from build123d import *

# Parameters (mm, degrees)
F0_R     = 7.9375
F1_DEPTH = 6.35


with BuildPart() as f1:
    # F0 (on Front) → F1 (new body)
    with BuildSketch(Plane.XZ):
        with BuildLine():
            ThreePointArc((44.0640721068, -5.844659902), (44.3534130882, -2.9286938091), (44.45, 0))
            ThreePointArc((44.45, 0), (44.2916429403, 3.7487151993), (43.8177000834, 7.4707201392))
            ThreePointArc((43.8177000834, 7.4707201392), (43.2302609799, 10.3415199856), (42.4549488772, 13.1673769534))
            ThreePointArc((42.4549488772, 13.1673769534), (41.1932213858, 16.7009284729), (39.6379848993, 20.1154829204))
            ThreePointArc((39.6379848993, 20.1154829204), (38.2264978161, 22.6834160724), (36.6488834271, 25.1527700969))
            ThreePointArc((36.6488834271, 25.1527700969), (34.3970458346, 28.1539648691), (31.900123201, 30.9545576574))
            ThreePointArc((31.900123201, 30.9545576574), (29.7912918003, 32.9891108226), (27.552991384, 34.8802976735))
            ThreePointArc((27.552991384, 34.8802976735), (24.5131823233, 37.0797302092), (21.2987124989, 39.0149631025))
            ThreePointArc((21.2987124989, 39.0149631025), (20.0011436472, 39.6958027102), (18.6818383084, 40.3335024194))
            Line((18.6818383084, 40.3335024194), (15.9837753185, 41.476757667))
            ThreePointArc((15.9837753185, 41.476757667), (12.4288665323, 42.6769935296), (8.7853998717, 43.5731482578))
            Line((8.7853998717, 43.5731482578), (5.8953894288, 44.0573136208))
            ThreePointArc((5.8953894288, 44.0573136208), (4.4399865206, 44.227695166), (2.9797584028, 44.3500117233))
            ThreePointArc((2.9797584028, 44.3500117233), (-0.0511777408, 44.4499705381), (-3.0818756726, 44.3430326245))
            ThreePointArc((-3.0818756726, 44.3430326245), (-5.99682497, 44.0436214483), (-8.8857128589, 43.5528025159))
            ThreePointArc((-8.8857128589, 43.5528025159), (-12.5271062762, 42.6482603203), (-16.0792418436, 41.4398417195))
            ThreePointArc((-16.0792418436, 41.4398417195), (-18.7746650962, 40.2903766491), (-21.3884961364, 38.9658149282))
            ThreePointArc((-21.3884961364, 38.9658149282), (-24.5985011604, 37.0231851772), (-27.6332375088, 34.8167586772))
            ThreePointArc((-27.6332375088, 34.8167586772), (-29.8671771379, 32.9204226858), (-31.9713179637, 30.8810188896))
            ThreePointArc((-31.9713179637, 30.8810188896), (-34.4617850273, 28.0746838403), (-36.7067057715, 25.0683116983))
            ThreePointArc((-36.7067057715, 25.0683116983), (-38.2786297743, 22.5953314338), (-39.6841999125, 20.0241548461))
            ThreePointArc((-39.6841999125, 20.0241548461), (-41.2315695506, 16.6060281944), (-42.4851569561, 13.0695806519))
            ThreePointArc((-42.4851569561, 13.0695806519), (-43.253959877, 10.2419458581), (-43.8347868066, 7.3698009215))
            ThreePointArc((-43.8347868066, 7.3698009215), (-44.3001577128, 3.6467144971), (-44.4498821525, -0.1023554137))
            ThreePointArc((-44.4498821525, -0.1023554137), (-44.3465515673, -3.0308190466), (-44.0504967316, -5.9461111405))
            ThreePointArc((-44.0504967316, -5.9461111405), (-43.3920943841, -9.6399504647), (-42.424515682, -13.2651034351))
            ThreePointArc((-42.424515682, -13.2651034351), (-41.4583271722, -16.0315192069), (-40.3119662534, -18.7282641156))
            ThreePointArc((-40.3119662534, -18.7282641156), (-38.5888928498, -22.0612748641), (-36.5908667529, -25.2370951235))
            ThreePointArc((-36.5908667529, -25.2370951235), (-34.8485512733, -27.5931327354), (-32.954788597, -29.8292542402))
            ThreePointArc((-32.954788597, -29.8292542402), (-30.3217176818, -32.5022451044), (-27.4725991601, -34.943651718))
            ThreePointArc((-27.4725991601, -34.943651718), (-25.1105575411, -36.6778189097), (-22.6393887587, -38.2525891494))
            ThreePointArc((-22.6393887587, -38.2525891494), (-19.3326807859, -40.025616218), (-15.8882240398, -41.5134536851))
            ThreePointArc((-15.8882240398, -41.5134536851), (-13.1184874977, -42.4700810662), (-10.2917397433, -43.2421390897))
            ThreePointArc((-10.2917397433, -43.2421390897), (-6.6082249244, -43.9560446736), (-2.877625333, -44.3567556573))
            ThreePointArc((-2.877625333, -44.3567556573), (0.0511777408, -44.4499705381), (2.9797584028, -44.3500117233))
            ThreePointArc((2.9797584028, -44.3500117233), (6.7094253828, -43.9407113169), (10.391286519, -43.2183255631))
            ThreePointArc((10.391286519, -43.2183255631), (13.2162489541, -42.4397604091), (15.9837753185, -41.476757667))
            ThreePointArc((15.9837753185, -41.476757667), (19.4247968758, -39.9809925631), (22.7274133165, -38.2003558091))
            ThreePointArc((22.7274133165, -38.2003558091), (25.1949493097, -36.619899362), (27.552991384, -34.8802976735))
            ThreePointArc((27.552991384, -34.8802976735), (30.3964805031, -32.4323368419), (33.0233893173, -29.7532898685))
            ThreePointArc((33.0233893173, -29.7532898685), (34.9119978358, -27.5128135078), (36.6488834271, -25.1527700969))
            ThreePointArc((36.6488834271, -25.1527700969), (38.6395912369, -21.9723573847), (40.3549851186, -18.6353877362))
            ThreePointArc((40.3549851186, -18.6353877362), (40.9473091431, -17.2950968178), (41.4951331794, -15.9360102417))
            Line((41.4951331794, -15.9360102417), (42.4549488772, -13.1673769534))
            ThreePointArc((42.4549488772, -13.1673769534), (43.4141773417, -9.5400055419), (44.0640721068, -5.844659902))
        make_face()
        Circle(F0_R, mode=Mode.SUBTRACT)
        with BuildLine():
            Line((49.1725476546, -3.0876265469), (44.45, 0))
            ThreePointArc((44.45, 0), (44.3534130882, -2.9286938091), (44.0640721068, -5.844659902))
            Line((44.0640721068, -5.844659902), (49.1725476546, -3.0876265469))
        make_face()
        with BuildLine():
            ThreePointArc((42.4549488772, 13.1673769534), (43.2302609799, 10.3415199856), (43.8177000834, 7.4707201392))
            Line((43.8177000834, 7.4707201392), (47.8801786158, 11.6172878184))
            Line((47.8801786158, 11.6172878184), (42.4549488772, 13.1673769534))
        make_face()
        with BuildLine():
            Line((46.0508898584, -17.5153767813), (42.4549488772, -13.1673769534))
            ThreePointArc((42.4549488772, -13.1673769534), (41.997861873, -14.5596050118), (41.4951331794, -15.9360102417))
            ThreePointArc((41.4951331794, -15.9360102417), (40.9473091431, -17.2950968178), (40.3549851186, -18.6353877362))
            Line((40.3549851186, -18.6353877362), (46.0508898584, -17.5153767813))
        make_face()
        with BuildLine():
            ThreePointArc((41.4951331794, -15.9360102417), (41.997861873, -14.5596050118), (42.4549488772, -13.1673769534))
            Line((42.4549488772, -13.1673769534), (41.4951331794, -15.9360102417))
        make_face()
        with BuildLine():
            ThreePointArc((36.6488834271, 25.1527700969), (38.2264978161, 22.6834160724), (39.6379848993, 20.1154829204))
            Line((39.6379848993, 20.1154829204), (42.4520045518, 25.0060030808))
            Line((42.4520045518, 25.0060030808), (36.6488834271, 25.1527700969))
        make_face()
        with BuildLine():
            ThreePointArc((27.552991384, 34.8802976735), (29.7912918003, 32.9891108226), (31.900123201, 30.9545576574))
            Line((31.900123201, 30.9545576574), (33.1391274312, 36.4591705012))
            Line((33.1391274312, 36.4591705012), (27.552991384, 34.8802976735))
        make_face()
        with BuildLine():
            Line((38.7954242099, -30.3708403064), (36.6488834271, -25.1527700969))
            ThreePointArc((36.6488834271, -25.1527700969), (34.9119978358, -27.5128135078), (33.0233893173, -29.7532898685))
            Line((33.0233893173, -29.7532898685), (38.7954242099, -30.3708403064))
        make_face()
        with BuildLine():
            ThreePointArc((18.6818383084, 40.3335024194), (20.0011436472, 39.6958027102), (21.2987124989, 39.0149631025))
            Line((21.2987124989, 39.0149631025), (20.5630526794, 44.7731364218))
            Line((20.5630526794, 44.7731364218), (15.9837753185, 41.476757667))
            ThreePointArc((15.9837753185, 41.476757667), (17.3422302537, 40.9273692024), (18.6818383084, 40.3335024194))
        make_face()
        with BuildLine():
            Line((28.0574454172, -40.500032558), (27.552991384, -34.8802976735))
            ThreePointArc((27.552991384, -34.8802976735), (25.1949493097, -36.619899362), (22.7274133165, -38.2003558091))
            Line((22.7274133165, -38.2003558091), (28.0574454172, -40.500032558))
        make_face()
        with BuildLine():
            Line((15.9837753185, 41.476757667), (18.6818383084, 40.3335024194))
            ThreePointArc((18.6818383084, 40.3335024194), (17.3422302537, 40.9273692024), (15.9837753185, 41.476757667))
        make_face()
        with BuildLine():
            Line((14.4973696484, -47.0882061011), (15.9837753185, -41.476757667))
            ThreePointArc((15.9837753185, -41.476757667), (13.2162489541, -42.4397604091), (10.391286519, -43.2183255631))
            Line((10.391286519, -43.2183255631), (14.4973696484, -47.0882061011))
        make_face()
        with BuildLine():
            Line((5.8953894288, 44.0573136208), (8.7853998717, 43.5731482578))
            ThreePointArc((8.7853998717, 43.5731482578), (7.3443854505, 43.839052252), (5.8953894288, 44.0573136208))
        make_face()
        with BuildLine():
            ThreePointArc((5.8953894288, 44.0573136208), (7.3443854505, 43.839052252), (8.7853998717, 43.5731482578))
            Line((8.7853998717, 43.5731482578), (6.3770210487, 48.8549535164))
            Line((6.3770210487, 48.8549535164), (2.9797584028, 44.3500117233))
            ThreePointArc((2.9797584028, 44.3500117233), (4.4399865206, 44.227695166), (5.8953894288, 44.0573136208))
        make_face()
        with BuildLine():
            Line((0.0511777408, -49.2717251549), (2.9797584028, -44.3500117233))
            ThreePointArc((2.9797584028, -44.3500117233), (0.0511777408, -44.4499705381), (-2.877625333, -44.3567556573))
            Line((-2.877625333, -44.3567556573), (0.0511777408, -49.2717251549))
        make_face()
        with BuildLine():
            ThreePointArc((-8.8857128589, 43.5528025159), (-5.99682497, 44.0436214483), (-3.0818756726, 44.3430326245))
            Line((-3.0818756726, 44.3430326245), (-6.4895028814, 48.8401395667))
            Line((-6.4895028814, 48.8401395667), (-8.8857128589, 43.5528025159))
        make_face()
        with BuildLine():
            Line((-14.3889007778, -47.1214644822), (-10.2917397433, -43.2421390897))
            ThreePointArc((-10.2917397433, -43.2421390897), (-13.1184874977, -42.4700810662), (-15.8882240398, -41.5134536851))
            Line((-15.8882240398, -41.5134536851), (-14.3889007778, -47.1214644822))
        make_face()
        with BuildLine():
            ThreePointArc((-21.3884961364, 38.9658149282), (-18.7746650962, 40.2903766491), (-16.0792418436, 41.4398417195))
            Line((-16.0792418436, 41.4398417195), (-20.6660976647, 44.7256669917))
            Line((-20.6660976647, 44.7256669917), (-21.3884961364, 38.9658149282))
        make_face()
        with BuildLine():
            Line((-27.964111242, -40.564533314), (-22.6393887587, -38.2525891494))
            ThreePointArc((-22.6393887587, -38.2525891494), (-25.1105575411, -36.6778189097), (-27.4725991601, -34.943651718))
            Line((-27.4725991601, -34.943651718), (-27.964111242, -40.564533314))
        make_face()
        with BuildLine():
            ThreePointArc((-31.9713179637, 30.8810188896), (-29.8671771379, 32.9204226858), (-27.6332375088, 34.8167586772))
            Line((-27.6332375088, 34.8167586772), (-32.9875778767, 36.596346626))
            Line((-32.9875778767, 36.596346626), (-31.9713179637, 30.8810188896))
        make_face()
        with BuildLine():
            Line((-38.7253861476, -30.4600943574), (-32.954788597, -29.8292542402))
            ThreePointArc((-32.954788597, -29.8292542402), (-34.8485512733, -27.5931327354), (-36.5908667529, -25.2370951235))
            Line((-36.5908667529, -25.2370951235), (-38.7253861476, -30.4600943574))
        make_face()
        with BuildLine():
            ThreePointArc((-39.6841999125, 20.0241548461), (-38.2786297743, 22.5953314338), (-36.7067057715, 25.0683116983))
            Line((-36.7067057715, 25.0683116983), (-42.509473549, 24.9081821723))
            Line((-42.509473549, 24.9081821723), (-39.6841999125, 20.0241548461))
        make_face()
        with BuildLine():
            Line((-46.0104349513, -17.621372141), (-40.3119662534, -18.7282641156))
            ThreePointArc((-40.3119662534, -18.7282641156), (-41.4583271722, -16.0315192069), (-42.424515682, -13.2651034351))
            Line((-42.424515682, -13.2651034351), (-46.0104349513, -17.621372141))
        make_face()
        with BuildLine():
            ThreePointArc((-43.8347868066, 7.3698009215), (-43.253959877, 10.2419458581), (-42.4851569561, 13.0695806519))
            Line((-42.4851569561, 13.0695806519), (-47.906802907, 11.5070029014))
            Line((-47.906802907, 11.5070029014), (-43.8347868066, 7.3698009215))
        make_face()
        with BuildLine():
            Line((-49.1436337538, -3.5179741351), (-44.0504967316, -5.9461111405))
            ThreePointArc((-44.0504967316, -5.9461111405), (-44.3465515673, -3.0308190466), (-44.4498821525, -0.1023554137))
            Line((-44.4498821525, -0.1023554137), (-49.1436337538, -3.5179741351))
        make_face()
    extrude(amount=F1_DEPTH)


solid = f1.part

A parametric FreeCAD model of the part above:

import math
import FreeCAD as App
import Part
import Sketcher

V = App.Vector
Q = App.Units.Quantity

doc = App.newDocument("Part")
body = doc.addObject("PartDesign::Body", "Body")

# Sketch on XZ plane
sketch1 = body.newObject("Sketcher::SketchObject", "Sketch")
sketch1.AttachmentSupport = (doc.getObject("XZ_Plane"), [""])
sketch1.MapMode = "FlatFace"
sketch1.addGeometry([
    Part.LineSegment(V(21, 45, 0), V(16, 41, 0)),  # 0
    Part.ArcOfCircle(Part.Circle(V(0, 0, 0), V(0, 0, 1), 44), math.radians(68.92), math.radians(78.6)),  # 1
    Part.LineSegment(V(9, 44, 0), V(6, 49, 0)),  # 2
    Part.LineSegment(V(6, 49, 0), V(3, 44, 0)),  # 3
    Part.ArcOfCircle(Part.Circle(V(0, 0, 0), V(0, 0, 1), 44), math.radians(86.16), math.radians(93.98)),  # 4
    Part.LineSegment(V(-3, 44, 0), V(-6, 49, 0)),  # 5
    Part.LineSegment(V(-6, 49, 0), V(-9, 44, 0)),  # 6
    Part.ArcOfCircle(Part.Circle(V(0, 0, 0), V(0, 0, 1), 44), math.radians(101.53), math.radians(111.21)),  # 7
    Part.LineSegment(V(-16, 41, 0), V(-21, 45, 0)),  # 8
    Part.LineSegment(V(-21, 45, 0), V(-21, 39, 0)),  # 9
    Part.ArcOfCircle(Part.Circle(V(0, 0, 0), V(0, 0, 1), 44), math.radians(118.76), math.radians(128.44)),  # 10
    Part.LineSegment(V(-28, 35, 0), V(-33, 37, 0)),  # 11
    Part.LineSegment(V(-33, 37, 0), V(-32, 31, 0)),  # 12
    Part.ArcOfCircle(Part.Circle(V(0, 0, 0), V(0, 0, 1), 44), math.radians(135.99), math.radians(145.67)),  # 13
    Part.LineSegment(V(-37, 25, 0), V(-43, 25, 0)),  # 14
    Part.LineSegment(V(-43, 25, 0), V(-40, 20, 0)),  # 15
    Part.ArcOfCircle(Part.Circle(V(0, 0, 0), V(0, 0, 1), 44), math.radians(153.23), math.radians(162.9)),  # 16
    Part.LineSegment(V(-42, 13, 0), V(-48, 12, 0)),  # 17
    Part.LineSegment(V(-48, 12, 0), V(-44, 7, 0)),  # 18
    Part.ArcOfCircle(Part.Circle(V(0, 0, 0), V(0, 0, 1), 44), math.radians(170.46), math.radians(180.13)),  # 19
    Part.LineSegment(V(-44, 0, 0), V(-49, -4, 0)),  # 20
    Part.LineSegment(V(-49, -4, 0), V(-44, -6, 0)),  # 21
    Part.ArcOfCircle(Part.Circle(V(0, 0, 0), V(0, 0, 1), 44), math.radians(-172.31), math.radians(-162.64)),  # 22
    Part.LineSegment(V(-42, -13, 0), V(-46, -18, 0)),  # 23
    Part.LineSegment(V(-46, -18, 0), V(-40, -19, 0)),  # 24
    Part.ArcOfCircle(Part.Circle(V(0, 0, 0), V(0, 0, 1), 44), math.radians(-155.08), math.radians(-145.41)),  # 25
    Part.LineSegment(V(-37, -25, 0), V(-39, -30, 0)),  # 26
    Part.LineSegment(V(-39, -30, 0), V(-33, -30, 0)),  # 27
    Part.ArcOfCircle(Part.Circle(V(0, 0, 0), V(0, 0, 1), 44), math.radians(-137.85), math.radians(-128.17)),  # 28
    Part.LineSegment(V(-27, -35, 0), V(-28, -41, 0)),  # 29
    Part.LineSegment(V(-28, -41, 0), V(-23, -38, 0)),  # 30
    Part.ArcOfCircle(Part.Circle(V(0, 0, 0), V(0, 0, 1), 44), math.radians(-120.62), math.radians(-110.94)),  # 31
    Part.LineSegment(V(-16, -42, 0), V(-14, -47, 0)),  # 32
    Part.LineSegment(V(-14, -47, 0), V(-10, -43, 0)),  # 33
    Part.ArcOfCircle(Part.Circle(V(0, 0, 0), V(0, 0, 1), 44), math.radians(-103.39), math.radians(-93.71)),  # 34
    Part.LineSegment(V(-3, -44, 0), V(0, -49, 0)),  # 35
    Part.LineSegment(V(0, -49, 0), V(3, -44, 0)),  # 36
    Part.ArcOfCircle(Part.Circle(V(0, 0, 0), V(0, 0, 1), 44), math.radians(-86.16), math.radians(-76.48)),  # 37
    Part.LineSegment(V(10, -43, 0), V(14, -47, 0)),  # 38
    Part.LineSegment(V(14, -47, 0), V(16, -41, 0)),  # 39
    Part.ArcOfCircle(Part.Circle(V(0, 0, 0), V(0, 0, 1), 44), math.radians(-68.92), math.radians(-59.25)),  # 40
    Part.LineSegment(V(23, -38, 0), V(28, -41, 0)),  # 41
    Part.LineSegment(V(28, -41, 0), V(28, -35, 0)),  # 42
    Part.ArcOfCircle(Part.Circle(V(0, 0, 0), V(0, 0, 1), 44), math.radians(-51.69), math.radians(-42.02)),  # 43
    Part.LineSegment(V(33, -30, 0), V(39, -30, 0)),  # 44
    Part.LineSegment(V(39, -30, 0), V(37, -25, 0)),  # 45
    Part.ArcOfCircle(Part.Circle(V(0, 0, 0), V(0, 0, 1), 44), math.radians(-34.46), math.radians(-24.79)),  # 46
    Part.LineSegment(V(40, -19, 0), V(46, -18, 0)),  # 47
    Part.LineSegment(V(46, -18, 0), V(42, -13, 0)),  # 48
    Part.ArcOfCircle(Part.Circle(V(0, 0, 0), V(0, 0, 1), 44), math.radians(-17.23), math.radians(-7.56)),  # 49
    Part.LineSegment(V(44, -6, 0), V(49, -3, 0)),  # 50
    Part.LineSegment(V(49, -3, 0), V(44, 0, 0)),  # 51
    Part.ArcOfCircle(Part.Circle(V(0, 0, 0), V(0, 0, 1), 44), math.radians(0), math.radians(9.68)),  # 52
    Part.LineSegment(V(44, 7, 0), V(48, 12, 0)),  # 53
    Part.LineSegment(V(48, 12, 0), V(42, 13, 0)),  # 54
    Part.ArcOfCircle(Part.Circle(V(0, 0, 0), V(0, 0, 1), 44), math.radians(17.23), math.radians(26.91)),  # 55
    Part.LineSegment(V(40, 20, 0), V(42, 25, 0)),  # 56
    Part.LineSegment(V(42, 25, 0), V(37, 25, 0)),  # 57
    Part.ArcOfCircle(Part.Circle(V(0, 0, 0), V(0, 0, 1), 44), math.radians(34.46), math.radians(44.14)),  # 58
    Part.LineSegment(V(32, 31, 0), V(33, 36, 0)),  # 59
    Part.LineSegment(V(33, 36, 0), V(28, 35, 0)),  # 60
    Part.ArcOfCircle(Part.Circle(V(0, 0, 0), V(0, 0, 1), 44), math.radians(51.69), math.radians(61.37)),  # 61
    Part.LineSegment(V(21, 39, 0), V(21, 45, 0)),  # 62
    Part.Circle(V(0, 0, 0), V(0, 0, 1), 8),  # 63
], False)
sketch1.addConstraint([
    Sketcher.Constraint("Coincident", 0, 2, 1, 1),
    Sketcher.Constraint("Coincident", 1, 2, 2, 1),
    Sketcher.Constraint("Coincident", 2, 2, 3, 1),
    Sketcher.Constraint("Coincident", 3, 2, 4, 1),
    Sketcher.Constraint("Coincident", 4, 2, 5, 1),
    Sketcher.Constraint("Coincident", 5, 2, 6, 1),
    Sketcher.Constraint("Coincident", 6, 2, 7, 1),
    Sketcher.Constraint("Coincident", 7, 2, 8, 1),
    Sketcher.Constraint("Coincident", 8, 2, 9, 1),
    Sketcher.Constraint("Coincident", 9, 2, 10, 1),
    Sketcher.Constraint("Coincident", 10, 2, 11, 1),
    Sketcher.Constraint("Coincident", 11, 2, 12, 1),
    Sketcher.Constraint("Coincident", 12, 2, 13, 1),
    Sketcher.Constraint("Coincident", 13, 2, 14, 1),
    Sketcher.Constraint("Coincident", 14, 2, 15, 1),
    Sketcher.Constraint("Coincident", 15, 2, 16, 1),
    Sketcher.Constraint("Coincident", 16, 2, 17, 1),
    Sketcher.Constraint("Coincident", 17, 2, 18, 1),
    Sketcher.Constraint("Coincident", 18, 2, 19, 1),
    Sketcher.Constraint("Coincident", 19, 2, 20, 1),
    Sketcher.Constraint("Coincident", 20, 2, 21, 1),
    Sketcher.Constraint("Coincident", 21, 2, 22, 1),
    Sketcher.Constraint("Coincident", 22, 2, 23, 1),
    Sketcher.Constraint("Coincident", 23, 2, 24, 1),
    Sketcher.Constraint("Coincident", 24, 2, 25, 1),
    Sketcher.Constraint("Coincident", 25, 2, 26, 1),
    Sketcher.Constraint("Coincident", 26, 2, 27, 1),
    Sketcher.Constraint("Coincident", 27, 2, 28, 1),
    Sketcher.Constraint("Coincident", 28, 2, 29, 1),
    Sketcher.Constraint("Coincident", 29, 2, 30, 1),
    Sketcher.Constraint("Coincident", 30, 2, 31, 1),
    Sketcher.Constraint("Coincident", 31, 2, 32, 1),
    Sketcher.Constraint("Coincident", 32, 2, 33, 1),
    Sketcher.Constraint("Coincident", 33, 2, 34, 1),
    Sketcher.Constraint("Coincident", 34, 2, 35, 1),
    Sketcher.Constraint("Coincident", 35, 2, 36, 1),
    Sketcher.Constraint("Coincident", 36, 2, 37, 1),
    Sketcher.Constraint("Coincident", 37, 2, 38, 1),
    Sketcher.Constraint("Coincident", 38, 2, 39, 1),
    Sketcher.Constraint("Coincident", 39, 2, 40, 1),
    Sketcher.Constraint("Coincident", 40, 2, 41, 1),
    Sketcher.Constraint("Coincident", 41, 2, 42, 1),
    Sketcher.Constraint("Coincident", 42, 2, 43, 1),
    Sketcher.Constraint("Coincident", 43, 2, 44, 1),
    Sketcher.Constraint("Coincident", 44, 2, 45, 1),
    Sketcher.Constraint("Coincident", 45, 2, 46, 1),
    Sketcher.Constraint("Coincident", 46, 2, 47, 1),
    Sketcher.Constraint("Coincident", 47, 2, 48, 1),
    Sketcher.Constraint("Coincident", 48, 2, 49, 1),
    Sketcher.Constraint("Coincident", 49, 2, 50, 1),
    Sketcher.Constraint("Coincident", 50, 2, 51, 1),
    Sketcher.Constraint("Coincident", 51, 2, 52, 1),
    Sketcher.Constraint("Coincident", 52, 2, 53, 1),
    Sketcher.Constraint("Coincident", 53, 2, 54, 1),
    Sketcher.Constraint("Coincident", 54, 2, 55, 1),
    Sketcher.Constraint("Coincident", 55, 2, 56, 1),
    Sketcher.Constraint("Coincident", 56, 2, 57, 1),
    Sketcher.Constraint("Coincident", 57, 2, 58, 1),
    Sketcher.Constraint("Coincident", 58, 2, 59, 1),
    Sketcher.Constraint("Coincident", 59, 2, 60, 1),
    Sketcher.Constraint("Coincident", 60, 2, 61, 1),
    Sketcher.Constraint("Coincident", 61, 2, 62, 1),
    Sketcher.Constraint("Coincident", 62, 2, 0, 1),
    Sketcher.Constraint("Coincident", 1, 3, -1, 1),
    Sketcher.Constraint("Coincident", 4, 3, -1, 1),
    Sketcher.Constraint("Coincident", 7, 3, -1, 1),
    Sketcher.Constraint("Coincident", 10, 3, -1, 1),
    Sketcher.Constraint("Coincident", 13, 3, -1, 1),
    Sketcher.Constraint("Coincident", 16, 3, -1, 1),
    Sketcher.Constraint("Coincident", 19, 3, -1, 1),
    Sketcher.Constraint("Coincident", 22, 3, -1, 1),
    Sketcher.Constraint("Coincident", 25, 3, -1, 1),
    Sketcher.Constraint("Coincident", 28, 3, -1, 1),
    Sketcher.Constraint("Coincident", 31, 3, -1, 1),
    Sketcher.Constraint("Coincident", 34, 3, -1, 1),
    Sketcher.Constraint("Coincident", 37, 3, -1, 1),
    Sketcher.Constraint("Coincident", 40, 3, -1, 1),
    Sketcher.Constraint("Coincident", 43, 3, -1, 1),
    Sketcher.Constraint("Coincident", 46, 3, -1, 1),
    Sketcher.Constraint("Coincident", 49, 3, -1, 1),
    Sketcher.Constraint("Coincident", 52, 3, -1, 1),
    Sketcher.Constraint("Coincident", 55, 3, -1, 1),
    Sketcher.Constraint("Coincident", 58, 3, -1, 1),
    Sketcher.Constraint("Coincident", 61, 3, -1, 1),
    Sketcher.Constraint("Coincident", 63, 3, -1, 1),
    Sketcher.Constraint("Equal", 1, 4),
    Sketcher.Constraint("Equal", 4, 7),
    Sketcher.Constraint("Equal", 7, 10),
    Sketcher.Constraint("Equal", 10, 13),
    Sketcher.Constraint("Equal", 13, 16),
    Sketcher.Constraint("Equal", 16, 19),
    Sketcher.Constraint("Equal", 19, 22),
    Sketcher.Constraint("Equal", 22, 25),
    Sketcher.Constraint("Equal", 25, 28),
    Sketcher.Constraint("Equal", 28, 31),
    Sketcher.Constraint("Equal", 31, 34),
    Sketcher.Constraint("Equal", 34, 37),
    Sketcher.Constraint("Equal", 37, 40),
    Sketcher.Constraint("Equal", 40, 43),
    Sketcher.Constraint("Equal", 43, 46),
    Sketcher.Constraint("Equal", 46, 49),
    Sketcher.Constraint("Equal", 49, 52),
    Sketcher.Constraint("Equal", 52, 55),
    Sketcher.Constraint("Equal", 55, 58),
    Sketcher.Constraint("Equal", 58, 61),
    Sketcher.Constraint("PointOnObject", 51, 2, -1),
    Sketcher.Constraint("Vertical", 3, 2, 36, 2),
    Sketcher.Constraint("Vertical", 0, 2, 39, 2),
    Sketcher.Constraint("Vertical", 48, 2, 54, 2),
    Sketcher.Constraint("Vertical", 45, 2, 57, 2),
    Sketcher.Constraint("Vertical", 42, 2, 60, 2),
    Sketcher.Constraint("Equal", 0, 3),
    Sketcher.Constraint("Equal", 3, 5),
    Sketcher.Constraint("Equal", 2, 6),
    Sketcher.Constraint("Equal", 5, 8),
    Sketcher.Constraint("Equal", 6, 9),
    Sketcher.Constraint("Equal", 8, 11),
    Sketcher.Constraint("Equal", 9, 12),
    Sketcher.Constraint("Equal", 12, 14),
    Sketcher.Constraint("Equal", 11, 15),
    Sketcher.Constraint("Equal", 15, 17),
    Sketcher.Constraint("Equal", 14, 18),
    Sketcher.Constraint("Equal", 18, 20),
    Sketcher.Constraint("Equal", 17, 21),
    Sketcher.Constraint("Equal", 21, 23),
    Sketcher.Constraint("Equal", 20, 24),
    Sketcher.Constraint("Equal", 23, 26),
    Sketcher.Constraint("Equal", 24, 27),
    Sketcher.Constraint("Equal", 26, 29),
    Sketcher.Constraint("Equal", 27, 30),
    Sketcher.Constraint("Equal", 30, 32),
    Sketcher.Constraint("Equal", 29, 33),
    Sketcher.Constraint("Equal", 33, 38),
    Sketcher.Constraint("Equal", 32, 39),
    Sketcher.Constraint("Equal", 39, 41),
    Sketcher.Constraint("Equal", 38, 42),
    Sketcher.Constraint("Equal", 41, 44),
    Sketcher.Constraint("Equal", 42, 45),
    Sketcher.Constraint("Equal", 44, 47),
    Sketcher.Constraint("Equal", 45, 48),
    Sketcher.Constraint("Equal", 47, 50),
    Sketcher.Constraint("Equal", 48, 51),
    Sketcher.Constraint("Equal", 50, 53),
    Sketcher.Constraint("Equal", 51, 54),
    Sketcher.Constraint("Equal", 54, 56),
    Sketcher.Constraint("Equal", 53, 57),
    Sketcher.Constraint("Equal", 56, 59),
    Sketcher.Constraint("Equal", 57, 60),
    Sketcher.Constraint("Equal", 60, 62),
    Sketcher.Constraint("Radius", 1, Q("1.75 in")),
    Sketcher.Constraint("Diameter", 63, Q("0.625 in")),
    Sketcher.Constraint("DistanceX", -1, 1, 1, 2, 8.7854),
    Sketcher.Constraint("DistanceX", 15, 2, -1, 1, 39.6842),
    Sketcher.Constraint("DistanceY", -1, 1, 18, 2, 7.369801),
    Sketcher.Constraint("DistanceX", 28, 2, -1, 1, 27.472599),
    Sketcher.Constraint("DistanceX", 32, 2, -1, 1, 14.388901),
    Sketcher.Constraint("DistanceX", -1, 1, 52, 2, 43.8177),
    Sketcher.Constraint("Distance", 0, 5.642331),
    Sketcher.Constraint("DistanceX", -1, 1, 2, 2, 6.377021),
    Sketcher.Constraint("DistanceX", -1, 1, 3, 2, 2.979758),
    Sketcher.Constraint("DistanceY", -1, 1, 5, 2, 48.84014),
    Sketcher.Constraint("DistanceX", 7, 2, -1, 1, 16.079242),
    Sketcher.Constraint("DistanceY", -1, 1, 10, 2, 34.816759),
    Sketcher.Constraint("DistanceY", -1, 1, 12, 2, 30.881019),
    Sketcher.Constraint("DistanceY", -1, 1, 13, 2, 25.068312),
    Sketcher.Constraint("DistanceY", -1, 1, 16, 2, 13.069581),
    Sketcher.Constraint("DistanceY", 21, 2, -1, 1, 5.946111),
    Sketcher.Constraint("DistanceX", 27, 2, -1, 1, 32.954789),
    Sketcher.Constraint("DistanceX", 29, 2, -1, 1, 27.964111),
    Sketcher.Constraint("DistanceX", 33, 2, -1, 1, 10.29174),
    Sketcher.Constraint("DistanceX", -1, 1, 38, 2, 14.49737),
    Sketcher.Constraint("DistanceX", -1, 1, 42, 2, 27.552991),
    Sketcher.Constraint("DistanceX", -1, 1, 43, 2, 33.023389),
    Sketcher.Constraint("DistanceY", 44, 2, -1, 1, 30.37084),
    Sketcher.Constraint("DistanceX", -1, 1, 47, 2, 46.05089),
    Sketcher.Constraint("DistanceX", -1, 1, 48, 2, 42.454949),
    Sketcher.Constraint("DistanceY", 49, 2, -1, 1, 5.84466),
    Sketcher.Constraint("DistanceY", -1, 1, 59, 2, 36.459171),
    Sketcher.Constraint("Distance", 35, 5.721434),
    Sketcher.Constraint("Distance", 36, 5.727115),
    Sketcher.Constraint("DistanceX", -1, 1, 0, 2, 15.983775),
    Sketcher.Constraint("DistanceX", 4, 2, -1, 1, 3.081876),
    Sketcher.Constraint("DistanceX", 8, 2, -1, 1, 20.666098),
    Sketcher.Constraint("DistanceY", 19, 2, -1, 1, 0.102355),
    Sketcher.Constraint("DistanceX", 22, 2, -1, 1, 42.424516),
    Sketcher.Constraint("DistanceX", 23, 2, -1, 1, 46.010435),
    Sketcher.Constraint("DistanceX", 25, 2, -1, 1, 36.590867),
    Sketcher.Constraint("DistanceX", 34, 2, -1, 1, 2.877625),
    Sketcher.Constraint("DistanceX", -1, 1, 40, 2, 22.727413),
    Sketcher.Constraint("DistanceX", -1, 1, 55, 2, 39.637985),
    Sketcher.Constraint("DistanceX", -1, 1, 61, 2, 21.298712),
])
pad1 = body.newObject("PartDesign::Pad", "Pad")
pad1.Profile = sketch1
pad1.Length = Q("0.25 in")

doc.recompute()
